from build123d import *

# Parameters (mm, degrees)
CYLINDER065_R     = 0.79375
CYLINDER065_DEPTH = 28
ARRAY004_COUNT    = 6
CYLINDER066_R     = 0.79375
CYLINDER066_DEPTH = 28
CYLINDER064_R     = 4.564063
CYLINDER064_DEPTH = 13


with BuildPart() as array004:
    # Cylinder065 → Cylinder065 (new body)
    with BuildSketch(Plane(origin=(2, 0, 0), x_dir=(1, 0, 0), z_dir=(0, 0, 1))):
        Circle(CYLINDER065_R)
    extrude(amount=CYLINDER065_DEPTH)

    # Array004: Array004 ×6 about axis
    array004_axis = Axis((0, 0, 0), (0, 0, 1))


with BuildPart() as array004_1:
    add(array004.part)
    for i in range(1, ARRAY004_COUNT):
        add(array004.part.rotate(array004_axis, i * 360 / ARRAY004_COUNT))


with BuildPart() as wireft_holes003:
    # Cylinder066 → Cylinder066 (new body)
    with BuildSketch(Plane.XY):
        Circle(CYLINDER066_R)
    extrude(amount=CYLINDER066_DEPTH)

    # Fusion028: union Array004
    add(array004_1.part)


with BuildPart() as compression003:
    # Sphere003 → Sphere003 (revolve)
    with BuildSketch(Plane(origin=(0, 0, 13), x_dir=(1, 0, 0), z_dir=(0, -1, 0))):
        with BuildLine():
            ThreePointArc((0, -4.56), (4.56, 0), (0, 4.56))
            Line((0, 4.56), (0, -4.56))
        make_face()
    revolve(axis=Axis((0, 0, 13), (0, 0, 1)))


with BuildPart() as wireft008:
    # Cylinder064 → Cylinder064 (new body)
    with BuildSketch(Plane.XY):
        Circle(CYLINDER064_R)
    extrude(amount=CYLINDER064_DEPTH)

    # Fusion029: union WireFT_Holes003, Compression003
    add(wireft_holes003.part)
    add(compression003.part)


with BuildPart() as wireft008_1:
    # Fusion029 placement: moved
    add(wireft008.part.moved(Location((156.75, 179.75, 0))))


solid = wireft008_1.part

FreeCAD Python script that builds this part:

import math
import FreeCAD as App
import Part
import Sketcher
Q = App.Units.Quantity

doc = App.newDocument("Part")
params = doc.addObject("Spreadsheet::Sheet", "Params")
for row, (alias, value) in enumerate([
    ("pad1_length", "28 mm"),
    ("pad2_length", "28 mm"),
    ("sketch3_radius", "4.56 mm"),
    ("revolution_angle", "360 deg"),
    ("pad3_length", "13 mm"),
], start=1):
    params.set(f"A{row}", alias)
    params.set(f"B{row}", "=" + value)
    params.setAlias(f"B{row}", alias)

body = doc.addObject("PartDesign::Body", "Body")

sketch1 = doc.addObject("Sketcher::SketchObject", "Sketch")
body.addObject(sketch1)
sketch1.AttachmentSupport = (doc.XY_Plane, [""])
sketch1.MapMode = "FlatFace"
sketch1.addGeometry(Part.Circle(App.Vector(2, 0, 0), App.Vector(0, 0, 1), 0.8), False)
sketch1.addConstraint([
    Sketcher.Constraint("PointOnObject", 0, 3, -1),
    Sketcher.Constraint("DistanceX", -1, 1, 0, 3, Q("2 mm")),
    Sketcher.Constraint("Diameter", 0, Q("1.5875 mm")),
])
pad1 = doc.addObject("PartDesign::Pad", "Pad")
body.addObject(pad1)
pad1.Profile = sketch1
pad1.setExpression("Length", "Params.pad1_length")
body2 = doc.addObject("PartDesign::Body", "Body001")
body2.AllowCompound = True
doc.recompute()

body2.BaseFeature = body
doc.recompute()

body3 = doc.addObject("PartDesign::Body", "Body002")
body3.BaseFeature = body
body3.Placement = App.Placement(App.Vector(0, 0, 0), App.Rotation(App.Vector(0, 0, 1), 60))
boolean = doc.addObject("PartDesign::Boolean", "Boolean")
body2.addObject(boolean)
boolean.Type = "Fuse"
boolean.addObjects([body3])
doc.recompute()

body4 = doc.addObject("PartDesign::Body", "Body003")
body4.BaseFeature = body
body4.Placement = App.Placement(App.Vector(0, 0, 0), App.Rotation(App.Vector(0, 0, 1), 120))
boolean2 = doc.addObject("PartDesign::Boolean", "Boolean001")
body2.addObject(boolean2)
boolean2.Type = "Fuse"
boolean2.addObjects([body4])
doc.recompute()

body5 = doc.addObject("PartDesign::Body", "Body004")
body5.BaseFeature = body
body5.Placement = App.Placement(App.Vector(0, 0, 0), App.Rotation(App.Vector(0, 0, 1), 180))
boolean3 = doc.addObject("PartDesign::Boolean", "Boolean002")
body2.addObject(boolean3)
boolean3.Type = "Fuse"
boolean3.addObjects([body5])
doc.recompute()

body6 = doc.addObject("PartDesign::Body", "Body005")
body6.BaseFeature = body
body6.Placement = App.Placement(App.Vector(0, 0, 0), App.Rotation(App.Vector(0, 0, 1), 240))
boolean4 = doc.addObject("PartDesign::Boolean", "Boolean003")
body2.addObject(boolean4)
boolean4.Type = "Fuse"
boolean4.addObjects([body6])
doc.recompute()

body.Placement = App.Placement(App.Vector(0, 0, 0), App.Rotation(App.Vector(0, 0, 1), 300))
boolean5 = doc.addObject("PartDesign::Boolean", "Boolean004")
body2.addObject(boolean5)
boolean5.Type = "Fuse"
boolean5.addObjects([body])
body7 = doc.addObject("PartDesign::Body", "Body006")
body7.AllowCompound = True

sketch2 = doc.addObject("Sketcher::SketchObject", "Sketch001")
body7.addObject(sketch2)
sketch2.AttachmentSupport = (doc.getObject("XY_Plane006"), [""])
sketch2.MapMode = "FlatFace"
sketch2.addGeometry(Part.Circle(App.Vector(0, 0, 0), App.Vector(0, 0, 1), 0.8), False)
sketch2.addConstraint([
    Sketcher.Constraint("Coincident", 0, 3, -1, 1),
    Sketcher.Constraint("Diameter", 0, Q("1.5875 mm")),
])
pad2 = doc.addObject("PartDesign::Pad", "Pad001")
body7.addObject(pad2)
pad2.Profile = sketch2
pad2.setExpression("Length", "Params.pad2_length")
doc.recompute()

boolean6 = doc.addObject("PartDesign::Boolean", "Boolean005")
body7.addObject(boolean6)
boolean6.Type = "Fuse"
boolean6.addObjects([body2])
body8 = doc.addObject("PartDesign::Body", "Body007")

sketch3 = doc.addObject("Sketcher::SketchObject", "Sketch002")
body8.addObject(sketch3)
sketch3.AttachmentSupport = (doc.getObject("XZ_Plane007"), [""])
sketch3.MapMode = "FlatFace"
sketch3.addGeometry([
    Part.ArcOfCircle(Part.Circle(App.Vector(0, 13, 0), App.Vector(0, 0, 1), 4.6), math.radians(-90), math.radians(90)),
    Part.LineSegment(App.Vector(0, 17.6, 0), App.Vector(0, 8.4, 0)),
], False)
sketch3.addConstraint([
    Sketcher.Constraint("Coincident", 0, 1, 1, 2),
    Sketcher.Constraint("Coincident", 1, 1, 0, 2),
    Sketcher.Constraint("Vertical", 1),
    Sketcher.Constraint("PointOnObject", 0, 3, -2),
    Sketcher.Constraint("PointOnObject", 0, 1, -2),
    Sketcher.Constraint("Radius", 0, Q("4.56 mm")),
    Sketcher.Constraint("DistanceY", -1, 1, 0, 3, Q("13 mm")),
])
sketch3.setExpression("Constraints[5]", "Params.sketch3_radius")
revolution = doc.addObject("PartDesign::Revolution", "Revolution")
body8.addObject(revolution)
revolution.Profile = sketch3
revolution.ReferenceAxis = (sketch3, ["V_Axis"])
revolution.setExpression("Angle", "Params.revolution_angle")
body9 = doc.addObject("PartDesign::Body", "Body008")

sketch4 = doc.addObject("Sketcher::SketchObject", "Sketch003")
body9.addObject(sketch4)
sketch4.AttachmentSupport = (doc.getObject("XY_Plane008"), [""])
sketch4.MapMode = "FlatFace"
sketch4.addGeometry(Part.Circle(App.Vector(0, 0, 0), App.Vector(0, 0, 1), 4.6), False)
sketch4.addConstraint([
    Sketcher.Constraint("Coincident", 0, 3, -1, 1),
    Sketcher.Constraint("Diameter", 0, Q("9.128126 mm")),
])
pad3 = doc.addObject("PartDesign::Pad", "Pad002")
body9.addObject(pad3)
pad3.Profile = sketch4
pad3.setExpression("Length", "Params.pad3_length")
doc.recompute()

boolean7 = doc.addObject("PartDesign::Boolean", "Boolean006")
body9.addObject(boolean7)
boolean7.Type = "Fuse"
boolean7.addObjects([body7])
doc.recompute()

boolean8 = doc.addObject("PartDesign::Boolean", "Boolean007")
body9.addObject(boolean8)
boolean8.Type = "Fuse"
boolean8.addObjects([body8])
body10 = doc.addObject("PartDesign::Body", "Body009")
doc.recompute()

body9.Placement = App.Placement(App.Vector(156.75, 179.75, 0), App.Rotation(App.Vector(0, 0, 1), 0))
boolean9 = doc.addObject("PartDesign::Boolean", "Boolean008")
body10.addObject(boolean9)
boolean9.Type = "Fuse"
boolean9.addObjects([body9])

doc.recompute()
